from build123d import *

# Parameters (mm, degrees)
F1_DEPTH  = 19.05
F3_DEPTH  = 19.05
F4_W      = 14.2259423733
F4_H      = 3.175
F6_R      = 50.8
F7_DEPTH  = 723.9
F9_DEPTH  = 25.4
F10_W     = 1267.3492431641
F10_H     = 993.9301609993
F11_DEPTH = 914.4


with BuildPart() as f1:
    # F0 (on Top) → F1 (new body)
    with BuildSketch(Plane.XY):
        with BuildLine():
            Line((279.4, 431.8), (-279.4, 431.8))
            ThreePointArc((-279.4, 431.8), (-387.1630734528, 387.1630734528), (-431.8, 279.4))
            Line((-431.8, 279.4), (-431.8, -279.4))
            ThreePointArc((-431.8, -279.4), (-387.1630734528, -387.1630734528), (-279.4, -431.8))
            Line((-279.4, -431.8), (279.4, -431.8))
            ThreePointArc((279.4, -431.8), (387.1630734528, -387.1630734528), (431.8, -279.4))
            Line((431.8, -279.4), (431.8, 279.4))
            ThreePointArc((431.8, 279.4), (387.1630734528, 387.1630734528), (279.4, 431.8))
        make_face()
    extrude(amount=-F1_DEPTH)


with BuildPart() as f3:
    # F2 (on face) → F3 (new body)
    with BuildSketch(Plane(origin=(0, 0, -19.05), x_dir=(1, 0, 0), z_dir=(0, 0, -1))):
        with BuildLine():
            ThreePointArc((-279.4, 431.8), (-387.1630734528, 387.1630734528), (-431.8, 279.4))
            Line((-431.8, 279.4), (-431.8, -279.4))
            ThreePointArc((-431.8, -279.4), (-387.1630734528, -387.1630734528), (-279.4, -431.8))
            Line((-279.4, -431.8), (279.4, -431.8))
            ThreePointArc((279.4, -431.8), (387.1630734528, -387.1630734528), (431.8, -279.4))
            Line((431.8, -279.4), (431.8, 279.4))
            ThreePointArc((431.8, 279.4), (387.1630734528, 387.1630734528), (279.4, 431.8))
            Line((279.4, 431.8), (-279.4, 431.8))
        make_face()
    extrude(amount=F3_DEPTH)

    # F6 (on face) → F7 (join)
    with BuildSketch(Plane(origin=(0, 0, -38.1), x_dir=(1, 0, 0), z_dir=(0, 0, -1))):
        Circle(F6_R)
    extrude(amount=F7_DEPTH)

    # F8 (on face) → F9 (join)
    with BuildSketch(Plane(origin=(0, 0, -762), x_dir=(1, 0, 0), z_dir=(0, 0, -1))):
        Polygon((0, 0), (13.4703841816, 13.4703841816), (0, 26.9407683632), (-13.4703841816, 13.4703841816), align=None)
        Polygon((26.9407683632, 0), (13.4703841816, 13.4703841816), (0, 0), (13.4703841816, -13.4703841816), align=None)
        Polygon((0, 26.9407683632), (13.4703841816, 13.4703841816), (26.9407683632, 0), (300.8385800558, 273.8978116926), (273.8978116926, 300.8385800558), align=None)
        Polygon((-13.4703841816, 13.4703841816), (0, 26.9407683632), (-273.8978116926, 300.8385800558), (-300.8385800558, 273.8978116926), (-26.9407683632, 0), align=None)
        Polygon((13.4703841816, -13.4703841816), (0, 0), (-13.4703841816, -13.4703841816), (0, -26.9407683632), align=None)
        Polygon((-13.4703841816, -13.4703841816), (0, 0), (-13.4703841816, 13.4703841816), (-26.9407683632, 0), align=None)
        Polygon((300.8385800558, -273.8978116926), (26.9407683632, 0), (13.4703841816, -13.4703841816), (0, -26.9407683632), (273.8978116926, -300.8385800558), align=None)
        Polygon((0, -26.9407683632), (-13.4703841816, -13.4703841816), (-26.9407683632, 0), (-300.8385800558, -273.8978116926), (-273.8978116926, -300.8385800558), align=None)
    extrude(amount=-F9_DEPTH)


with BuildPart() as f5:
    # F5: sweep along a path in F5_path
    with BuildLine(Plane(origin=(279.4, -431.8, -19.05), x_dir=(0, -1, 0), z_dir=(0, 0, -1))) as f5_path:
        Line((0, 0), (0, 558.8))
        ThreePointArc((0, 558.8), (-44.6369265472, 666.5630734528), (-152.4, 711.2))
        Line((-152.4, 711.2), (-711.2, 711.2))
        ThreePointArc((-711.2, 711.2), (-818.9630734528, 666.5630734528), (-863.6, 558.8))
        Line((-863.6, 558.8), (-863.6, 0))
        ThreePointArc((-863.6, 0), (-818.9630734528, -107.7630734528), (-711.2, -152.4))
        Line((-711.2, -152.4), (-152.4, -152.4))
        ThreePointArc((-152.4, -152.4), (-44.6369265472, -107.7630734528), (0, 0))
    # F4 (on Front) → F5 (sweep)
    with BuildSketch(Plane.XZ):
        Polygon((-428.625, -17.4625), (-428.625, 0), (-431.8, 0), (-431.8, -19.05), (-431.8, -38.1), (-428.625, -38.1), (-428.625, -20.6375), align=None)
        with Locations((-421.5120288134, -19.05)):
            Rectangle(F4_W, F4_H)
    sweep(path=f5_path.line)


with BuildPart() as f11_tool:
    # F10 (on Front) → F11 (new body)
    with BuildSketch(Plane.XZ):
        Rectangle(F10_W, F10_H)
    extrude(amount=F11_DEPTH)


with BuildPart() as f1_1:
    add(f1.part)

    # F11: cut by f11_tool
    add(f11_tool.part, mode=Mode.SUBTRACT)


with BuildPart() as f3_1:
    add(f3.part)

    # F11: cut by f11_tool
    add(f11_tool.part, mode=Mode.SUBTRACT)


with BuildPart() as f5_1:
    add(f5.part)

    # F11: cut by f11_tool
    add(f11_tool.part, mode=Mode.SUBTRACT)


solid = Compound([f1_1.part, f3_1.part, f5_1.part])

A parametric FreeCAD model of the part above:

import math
import FreeCAD as App
import Part
import Sketcher

V = App.Vector
Q = App.Units.Quantity

doc = App.newDocument("Part")
body = doc.addObject("PartDesign::Body", "Body")

sketch1 = body.newObject("Sketcher::SketchObject", "Sketch")
sketch1.AttachmentSupport = (doc.getObject("XY_Plane"), [""])
sketch1.MapMode = "FlatFace"
sketch1.addGeometry([
    Part.LineSegment(V(279, 432, 0), V(-279, 432, 0)),
    Part.ArcOfCircle(Part.Circle(V(-279, 279, 0), V(0, 0, 1), 152), math.radians(90), math.radians(180)),
    Part.LineSegment(V(-432, 279, 0), V(-432, -279, 0)),
    Part.ArcOfCircle(Part.Circle(V(-279, -279, 0), V(0, 0, 1), 152), math.radians(180), math.radians(270)),
    Part.LineSegment(V(-279, -432, 0), V(279, -432, 0)),
    Part.ArcOfCircle(Part.Circle(V(279, -279, 0), V(0, 0, 1), 152), math.radians(-90), math.radians(0)),
    Part.LineSegment(V(432, -279, 0), V(432, 279, 0)),
    Part.ArcOfCircle(Part.Circle(V(279, 279, 0), V(0, 0, 1), 152), math.radians(0), math.radians(90)),
], False)
sketch1.addConstraint([
    Sketcher.Constraint("Tangent", 0, 2, 1, 1),
    Sketcher.Constraint("Tangent", 1, 2, 2, 1),
    Sketcher.Constraint("Tangent", 2, 2, 3, 1),
    Sketcher.Constraint("Tangent", 3, 2, 4, 1),
    Sketcher.Constraint("Tangent", 4, 2, 5, 1),
    Sketcher.Constraint("Tangent", 5, 2, 6, 1),
    Sketcher.Constraint("Tangent", 6, 2, 7, 1),
    Sketcher.Constraint("Tangent", 7, 2, 0, 1),
    Sketcher.Constraint("Horizontal", 0),
    Sketcher.Constraint("Vertical", 2),
    Sketcher.Constraint("Horizontal", 4),
    Sketcher.Constraint("Vertical", 6),
    Sketcher.Constraint("Equal", 1, 3),
    Sketcher.Constraint("Equal", 3, 5),
    Sketcher.Constraint("Equal", 5, 7),
    Sketcher.Constraint("Symmetric", 1, 3, 5, 3, -1, 1),
    Sketcher.Constraint("Equal", 4, 2),
    Sketcher.Constraint("Radius", 1, Q("6 in")),
    Sketcher.Constraint("DistanceX", 0, 2, 0, 1, Q("22 in")),
])
pad1 = body.newObject("PartDesign::Pad", "Pad")
pad1.Profile = sketch1
pad1.Length = Q("0.75 in")
pad1.Reversed = True
body2 = doc.addObject("PartDesign::Body", "Body001")

sketch2 = body2.newObject("Sketcher::SketchObject", "Sketch001")
sketch2.AttachmentSupport = (doc.getObject("XY_Plane001"), [""])
sketch2.MapMode = "FlatFace"
sketch2.AttachmentOffset = App.Placement(V(0, 0, -0.75 * 25.4), App.Rotation())
sketch2.addGeometry([
    Part.ArcOfCircle(Part.Circle(V(-279, -279, 0), V(0, 0, 1), 152), math.radians(180), math.radians(270)),
    Part.LineSegment(V(-432, -279, 0), V(-432, 279, 0)),
    Part.ArcOfCircle(Part.Circle(V(-279, 279, 0), V(0, 0, 1), 152), math.radians(90), math.radians(180)),
    Part.LineSegment(V(-279, 432, 0), V(279, 432, 0)),
    Part.ArcOfCircle(Part.Circle(V(279, 279, 0), V(0, 0, 1), 152), math.radians(0), math.radians(90)),
    Part.LineSegment(V(432, 279, 0), V(432, -279, 0)),
    Part.ArcOfCircle(Part.Circle(V(279, -279, 0), V(0, 0, 1), 152), math.radians(-90), math.radians(0)),
    Part.LineSegment(V(279, -432, 0), V(-279, -432, 0)),
], False)
sketch2.addConstraint([
    Sketcher.Constraint("Tangent", 0, 1, 1, 1),
    Sketcher.Constraint("Tangent", 1, 2, 2, 2),
    Sketcher.Constraint("Tangent", 2, 1, 3, 1),
    Sketcher.Constraint("Tangent", 3, 2, 4, 2),
    Sketcher.Constraint("Tangent", 4, 1, 5, 1),
    Sketcher.Constraint("Tangent", 5, 2, 6, 2),
    Sketcher.Constraint("Tangent", 6, 1, 7, 1),
    Sketcher.Constraint("Tangent", 7, 2, 0, 2),
    Sketcher.Constraint("Vertical", 1),
    Sketcher.Constraint("Horizontal", 3),
    Sketcher.Constraint("Vertical", 5),
    Sketcher.Constraint("Horizontal", 7),
    Sketcher.Constraint("Equal", 0, 2),
    Sketcher.Constraint("Equal", 2, 4),
    Sketcher.Constraint("Equal", 4, 6),
    Sketcher.Constraint("Symmetric", 0, 3, 4, 3, -1, 1),
    Sketcher.Constraint("Equal", 7, 1),
    Sketcher.Constraint("Radius", 0, Q("6 in")),
    Sketcher.Constraint("DistanceX", 3, 1, 3, 2, Q("22 in")),
])
pad2 = body2.newObject("PartDesign::Pad", "Pad001")
pad2.Profile = sketch2
pad2.Length = Q("0.75 in")
pad2.Reversed = True

sketch3 = body2.newObject("Sketcher::SketchObject", "Sketch002")
sketch3.AttachmentSupport = (doc.getObject("XY_Plane001"), [""])
sketch3.MapMode = "FlatFace"
sketch3.AttachmentOffset = App.Placement(V(0, 0, -1.5 * 25.4), App.Rotation())
sketch3.addGeometry(Part.Circle(V(0, 0, 0), V(0, 0, 1), 51), False)
sketch3.addConstraint([
    Sketcher.Constraint("Coincident", 0, 3, -1, 1),
    Sketcher.Constraint("Diameter", 0, Q("4 in")),
])
pad3 = body2.newObject("PartDesign::Pad", "Pad002")
pad3.Profile = sketch3
pad3.Length = Q("28.5 in")
pad3.Reversed = True

sketch4 = body2.newObject("Sketcher::SketchObject", "Sketch003")
sketch4.AttachmentSupport = (doc.getObject("XY_Plane001"), [""])
sketch4.MapMode = "FlatFace"
sketch4.AttachmentOffset = App.Placement(V(0, 0, -30 * 25.4), App.Rotation())
sketch4.addGeometry([
    Part.LineSegment(V(27, 0, 0), V(301, -274, 0)),
    Part.LineSegment(V(301, -274, 0), V(274, -301, 0)),
    Part.LineSegment(V(274, -301, 0), V(0, -27, 0)),
    Part.LineSegment(V(0, -27, 0), V(-274, -301, 0)),
    Part.LineSegment(V(-274, -301, 0), V(-301, -274, 0)),
    Part.LineSegment(V(-301, -274, 0), V(-27, 0, 0)),
    Part.LineSegment(V(-27, 0, 0), V(-301, 274, 0)),
    Part.LineSegment(V(-301, 274, 0), V(-274, 301, 0)),
    Part.LineSegment(V(-274, 301, 0), V(0, 27, 0)),
    Part.LineSegment(V(0, 27, 0), V(274, 301, 0)),
    Part.LineSegment(V(274, 301, 0), V(301, 274, 0)),
    Part.LineSegment(V(301, 274, 0), V(27, 0, 0)),
], False)
sketch4.addConstraint([
    Sketcher.Constraint("Coincident", 0, 2, 1, 1),
    Sketcher.Constraint("Coincident", 1, 2, 2, 1),
    Sketcher.Constraint("Coincident", 2, 2, 3, 1),
    Sketcher.Constraint("Coincident", 3, 2, 4, 1),
    Sketcher.Constraint("Coincident", 4, 2, 5, 1),
    Sketcher.Constraint("Coincident", 5, 2, 6, 1),
    Sketcher.Constraint("Coincident", 6, 2, 7, 1),
    Sketcher.Constraint("Coincident", 7, 2, 8, 1),
    Sketcher.Constraint("Coincident", 8, 2, 9, 1),
    Sketcher.Constraint("Coincident", 9, 2, 10, 1),
    Sketcher.Constraint("Coincident", 10, 2, 11, 1),
    Sketcher.Constraint("Coincident", 11, 2, 0, 1),
    Sketcher.Constraint("Symmetric", 0, 2, 6, 2, -1, 1),
    Sketcher.Constraint("Symmetric", 1, 2, 7, 2, -1, 1),
    Sketcher.Constraint("Symmetric", 2, 2, 8, 2, -1, 1),
    Sketcher.Constraint("Symmetric", 3, 2, 9, 2, -1, 1),
    Sketcher.Constraint("Symmetric", 4, 2, 10, 2, -1, 1),
    Sketcher.Constraint("Symmetric", 5, 2, 11, 2, -1, 1),
    Sketcher.Constraint("Symmetric", 1, 2, 3, 2, -2),
    Sketcher.Constraint("Symmetric", 0, 2, 4, 2, -2),
    Sketcher.Constraint("PointOnObject", 2, 2, -2),
    Sketcher.Constraint("PointOnObject", 5, 2, -1),
    Sketcher.Constraint("Perpendicular", 0, 1),
    Sketcher.Constraint("Perpendicular", 1, 2),
    Sketcher.Constraint("Perpendicular", 2, 3),
    Sketcher.Constraint("Equal", 0, 2),
    Sketcher.Constraint("Distance", 1, Q("1.5 in")),
    Sketcher.Constraint("Distance", 0, Q("15.25 in")),
])
pad4 = body2.newObject("PartDesign::Pad", "Pad003")
pad4.Profile = sketch4
pad4.Length = Q("1 in")
body3 = doc.addObject("PartDesign::Body", "Body002")

sketch5 = body3.newObject("Sketcher::SketchObject", "Sketch004")
sketch5.AttachmentSupport = (doc.getObject("XZ_Plane002"), [""])
sketch5.MapMode = "FlatFace"
sketch5.addGeometry([
    Part.LineSegment(V(-428.6, 0, 0), V(-431.8, 0, 0)),
    Part.LineSegment(V(-431.8, 0, 0), V(-431.8, -38.1, 0)),
    Part.LineSegment(V(-431.8, -38.1, 0), V(-428.6, -38.1, 0)),
    Part.LineSegment(V(-428.6, -38.1, 0), V(-428.6, -20.6, 0)),
    Part.LineSegment(V(-428.6, -20.6, 0), V(-414.4, -20.6, 0)),
    Part.LineSegment(V(-414.4, -20.6, 0), V(-414.4, -17.5, 0)),
    Part.LineSegment(V(-414.4, -17.5, 0), V(-428.6, -17.5, 0)),
    Part.LineSegment(V(-428.6, -17.5, 0), V(-428.6, 0, 0)),
], False)
sketch5.addConstraint([
    Sketcher.Constraint("Coincident", 0, 2, 1, 1),
    Sketcher.Constraint("Coincident", 1, 2, 2, 1),
    Sketcher.Constraint("Coincident", 2, 2, 3, 1),
    Sketcher.Constraint("Coincident", 3, 2, 4, 1),
    Sketcher.Constraint("Coincident", 4, 2, 5, 1),
    Sketcher.Constraint("Coincident", 5, 2, 6, 1),
    Sketcher.Constraint("Coincident", 6, 2, 7, 1),
    Sketcher.Constraint("Coincident", 7, 2, 0, 1),
    Sketcher.Constraint("Horizontal", 0),
    Sketcher.Constraint("Vertical", 1),
    Sketcher.Constraint("Horizontal", 2),
    Sketcher.Constraint("Vertical", 3),
    Sketcher.Constraint("Horizontal", 4),
    Sketcher.Constraint("Vertical", 5),
    Sketcher.Constraint("Horizontal", 6),
    Sketcher.Constraint("Vertical", 7),
    Sketcher.Constraint("PointOnObject", 0, 2, -1),
    Sketcher.Constraint("Vertical", 3, 2, 6, 2),
    Sketcher.Constraint("Equal", 2, 5),
    Sketcher.Constraint("Equal", 3, 7),
    Sketcher.Constraint("DistanceY", 1, 2, 1, 1, Q("1.5 in")),
    Sketcher.Constraint("DistanceX", 0, 2, -1, 1, Q("17 in")),
    Sketcher.Constraint("DistanceX", 0, 2, 0, 1, Q("0.125 in")),
    Sketcher.Constraint("DistanceX", 4, 1, 4, 2, Q("14.225942 mm")),
])

sketch6 = body3.newObject("Sketcher::SketchObject", "Sketch005")
sketch6.AttachmentSupport = (doc.getObject("XY_Plane002"), [""])
sketch6.MapMode = "FlatFace"
sketch6.AttachmentOffset = App.Placement(V(0, 0, -0.75 * 25.4), App.Rotation())
sketch6.addGeometry([
    Part.LineSegment(V(279, -432, 0), V(-279, -432, 0)),
    Part.ArcOfCircle(Part.Circle(V(-279, -279, 0), V(0, 0, 1), 152), math.radians(180), math.radians(270)),
    Part.LineSegment(V(-432, -279, 0), V(-432, 279, 0)),
    Part.ArcOfCircle(Part.Circle(V(-279, 279, 0), V(0, 0, 1), 152), math.radians(90), math.radians(180)),
    Part.LineSegment(V(-279, 432, 0), V(279, 432, 0)),
    Part.ArcOfCircle(Part.Circle(V(279, 279, 0), V(0, 0, 1), 152), math.radians(0), math.radians(90)),
    Part.LineSegment(V(432, 279, 0), V(432, -279, 0)),
    Part.ArcOfCircle(Part.Circle(V(279, -279, 0), V(0, 0, 1), 152), math.radians(-90), math.radians(0)),
], False)
sketch6.addConstraint([
    Sketcher.Constraint("Tangent", 0, 2, 1, 2),
    Sketcher.Constraint("Tangent", 1, 1, 2, 1),
    Sketcher.Constraint("Tangent", 2, 2, 3, 2),
    Sketcher.Constraint("Tangent", 3, 1, 4, 1),
    Sketcher.Constraint("Tangent", 4, 2, 5, 2),
    Sketcher.Constraint("Tangent", 5, 1, 6, 1),
    Sketcher.Constraint("Tangent", 6, 2, 7, 2),
    Sketcher.Constraint("Tangent", 7, 1, 0, 1),
    Sketcher.Constraint("Horizontal", 0),
    Sketcher.Constraint("Vertical", 2),
    Sketcher.Constraint("Horizontal", 4),
    Sketcher.Constraint("Vertical", 6),
    Sketcher.Constraint("Equal", 1, 3),
    Sketcher.Constraint("Equal", 3, 5),
    Sketcher.Constraint("Equal", 5, 7),
    Sketcher.Constraint("Symmetric", 1, 3, 5, 3, -1, 1),
    Sketcher.Constraint("Equal", 4, 2),
    Sketcher.Constraint("Radius", 1, Q("6 in")),
    Sketcher.Constraint("DistanceX", 0, 2, 0, 1, Q("22 in")),
])
doc.recompute()

additivepipe = body3.newObject("PartDesign::AdditivePipe", "AdditivePipe")
additivepipe.Profile = sketch5
additivepipe.Spine = (sketch6, ["Edge1", "Edge2", "Edge3", "Edge4", "Edge5", "Edge6", "Edge7", "Edge8"])
body4 = doc.addObject("PartDesign::Body", "Body003")

sketch7 = body4.newObject("Sketcher::SketchObject", "Sketch006")
sketch7.AttachmentSupport = (doc.getObject("XZ_Plane003"), [""])
sketch7.MapMode = "FlatFace"
sketch7.addGeometry([
    Part.LineSegment(V(-634, 497, 0), V(-634, -497, 0)),
    Part.LineSegment(V(-634, -497, 0), V(634, -497, 0)),
    Part.LineSegment(V(634, -497, 0), V(634, 497, 0)),
    Part.LineSegment(V(634, 497, 0), V(-634, 497, 0)),
], False)
sketch7.addConstraint([
    Sketcher.Constraint("Coincident", 0, 2, 1, 1),
    Sketcher.Constraint("Coincident", 1, 2, 2, 1),
    Sketcher.Constraint("Coincident", 2, 2, 3, 1),
    Sketcher.Constraint("Coincident", 3, 2, 0, 1),
    Sketcher.Constraint("Vertical", 0),
    Sketcher.Constraint("Horizontal", 1),
    Sketcher.Constraint("Vertical", 2),
    Sketcher.Constraint("Horizontal", 3),
    Sketcher.Constraint("Symmetric", 0, 2, 2, 2, -1, 1),
    Sketcher.Constraint("DistanceY", 0, 2, 0, 1, Q("993.930161 mm")),
    Sketcher.Constraint("DistanceX", 1, 1, 1, 2, Q("1267.349243 mm")),
])
pad5 = body4.newObject("PartDesign::Pad", "Pad004")
pad5.Profile = sketch7
pad5.Length = Q("36 in")
doc.recompute()

body5 = doc.addObject("PartDesign::Body", "Body004")
body5.BaseFeature = body4
boolean = body.newObject("PartDesign::Boolean", "Boolean")
boolean.Type = "Cut"
boolean.addObjects([body5])
doc.recompute()

body6 = doc.addObject("PartDesign::Body", "Body005")
body6.BaseFeature = body4
boolean2 = body2.newObject("PartDesign::Boolean", "Boolean001")
boolean2.Type = "Cut"
boolean2.addObjects([body6])
doc.recompute()

boolean3 = body3.newObject("PartDesign::Boolean", "Boolean002")
boolean3.Type = "Cut"
boolean3.addObjects([body4])

doc.recompute()
